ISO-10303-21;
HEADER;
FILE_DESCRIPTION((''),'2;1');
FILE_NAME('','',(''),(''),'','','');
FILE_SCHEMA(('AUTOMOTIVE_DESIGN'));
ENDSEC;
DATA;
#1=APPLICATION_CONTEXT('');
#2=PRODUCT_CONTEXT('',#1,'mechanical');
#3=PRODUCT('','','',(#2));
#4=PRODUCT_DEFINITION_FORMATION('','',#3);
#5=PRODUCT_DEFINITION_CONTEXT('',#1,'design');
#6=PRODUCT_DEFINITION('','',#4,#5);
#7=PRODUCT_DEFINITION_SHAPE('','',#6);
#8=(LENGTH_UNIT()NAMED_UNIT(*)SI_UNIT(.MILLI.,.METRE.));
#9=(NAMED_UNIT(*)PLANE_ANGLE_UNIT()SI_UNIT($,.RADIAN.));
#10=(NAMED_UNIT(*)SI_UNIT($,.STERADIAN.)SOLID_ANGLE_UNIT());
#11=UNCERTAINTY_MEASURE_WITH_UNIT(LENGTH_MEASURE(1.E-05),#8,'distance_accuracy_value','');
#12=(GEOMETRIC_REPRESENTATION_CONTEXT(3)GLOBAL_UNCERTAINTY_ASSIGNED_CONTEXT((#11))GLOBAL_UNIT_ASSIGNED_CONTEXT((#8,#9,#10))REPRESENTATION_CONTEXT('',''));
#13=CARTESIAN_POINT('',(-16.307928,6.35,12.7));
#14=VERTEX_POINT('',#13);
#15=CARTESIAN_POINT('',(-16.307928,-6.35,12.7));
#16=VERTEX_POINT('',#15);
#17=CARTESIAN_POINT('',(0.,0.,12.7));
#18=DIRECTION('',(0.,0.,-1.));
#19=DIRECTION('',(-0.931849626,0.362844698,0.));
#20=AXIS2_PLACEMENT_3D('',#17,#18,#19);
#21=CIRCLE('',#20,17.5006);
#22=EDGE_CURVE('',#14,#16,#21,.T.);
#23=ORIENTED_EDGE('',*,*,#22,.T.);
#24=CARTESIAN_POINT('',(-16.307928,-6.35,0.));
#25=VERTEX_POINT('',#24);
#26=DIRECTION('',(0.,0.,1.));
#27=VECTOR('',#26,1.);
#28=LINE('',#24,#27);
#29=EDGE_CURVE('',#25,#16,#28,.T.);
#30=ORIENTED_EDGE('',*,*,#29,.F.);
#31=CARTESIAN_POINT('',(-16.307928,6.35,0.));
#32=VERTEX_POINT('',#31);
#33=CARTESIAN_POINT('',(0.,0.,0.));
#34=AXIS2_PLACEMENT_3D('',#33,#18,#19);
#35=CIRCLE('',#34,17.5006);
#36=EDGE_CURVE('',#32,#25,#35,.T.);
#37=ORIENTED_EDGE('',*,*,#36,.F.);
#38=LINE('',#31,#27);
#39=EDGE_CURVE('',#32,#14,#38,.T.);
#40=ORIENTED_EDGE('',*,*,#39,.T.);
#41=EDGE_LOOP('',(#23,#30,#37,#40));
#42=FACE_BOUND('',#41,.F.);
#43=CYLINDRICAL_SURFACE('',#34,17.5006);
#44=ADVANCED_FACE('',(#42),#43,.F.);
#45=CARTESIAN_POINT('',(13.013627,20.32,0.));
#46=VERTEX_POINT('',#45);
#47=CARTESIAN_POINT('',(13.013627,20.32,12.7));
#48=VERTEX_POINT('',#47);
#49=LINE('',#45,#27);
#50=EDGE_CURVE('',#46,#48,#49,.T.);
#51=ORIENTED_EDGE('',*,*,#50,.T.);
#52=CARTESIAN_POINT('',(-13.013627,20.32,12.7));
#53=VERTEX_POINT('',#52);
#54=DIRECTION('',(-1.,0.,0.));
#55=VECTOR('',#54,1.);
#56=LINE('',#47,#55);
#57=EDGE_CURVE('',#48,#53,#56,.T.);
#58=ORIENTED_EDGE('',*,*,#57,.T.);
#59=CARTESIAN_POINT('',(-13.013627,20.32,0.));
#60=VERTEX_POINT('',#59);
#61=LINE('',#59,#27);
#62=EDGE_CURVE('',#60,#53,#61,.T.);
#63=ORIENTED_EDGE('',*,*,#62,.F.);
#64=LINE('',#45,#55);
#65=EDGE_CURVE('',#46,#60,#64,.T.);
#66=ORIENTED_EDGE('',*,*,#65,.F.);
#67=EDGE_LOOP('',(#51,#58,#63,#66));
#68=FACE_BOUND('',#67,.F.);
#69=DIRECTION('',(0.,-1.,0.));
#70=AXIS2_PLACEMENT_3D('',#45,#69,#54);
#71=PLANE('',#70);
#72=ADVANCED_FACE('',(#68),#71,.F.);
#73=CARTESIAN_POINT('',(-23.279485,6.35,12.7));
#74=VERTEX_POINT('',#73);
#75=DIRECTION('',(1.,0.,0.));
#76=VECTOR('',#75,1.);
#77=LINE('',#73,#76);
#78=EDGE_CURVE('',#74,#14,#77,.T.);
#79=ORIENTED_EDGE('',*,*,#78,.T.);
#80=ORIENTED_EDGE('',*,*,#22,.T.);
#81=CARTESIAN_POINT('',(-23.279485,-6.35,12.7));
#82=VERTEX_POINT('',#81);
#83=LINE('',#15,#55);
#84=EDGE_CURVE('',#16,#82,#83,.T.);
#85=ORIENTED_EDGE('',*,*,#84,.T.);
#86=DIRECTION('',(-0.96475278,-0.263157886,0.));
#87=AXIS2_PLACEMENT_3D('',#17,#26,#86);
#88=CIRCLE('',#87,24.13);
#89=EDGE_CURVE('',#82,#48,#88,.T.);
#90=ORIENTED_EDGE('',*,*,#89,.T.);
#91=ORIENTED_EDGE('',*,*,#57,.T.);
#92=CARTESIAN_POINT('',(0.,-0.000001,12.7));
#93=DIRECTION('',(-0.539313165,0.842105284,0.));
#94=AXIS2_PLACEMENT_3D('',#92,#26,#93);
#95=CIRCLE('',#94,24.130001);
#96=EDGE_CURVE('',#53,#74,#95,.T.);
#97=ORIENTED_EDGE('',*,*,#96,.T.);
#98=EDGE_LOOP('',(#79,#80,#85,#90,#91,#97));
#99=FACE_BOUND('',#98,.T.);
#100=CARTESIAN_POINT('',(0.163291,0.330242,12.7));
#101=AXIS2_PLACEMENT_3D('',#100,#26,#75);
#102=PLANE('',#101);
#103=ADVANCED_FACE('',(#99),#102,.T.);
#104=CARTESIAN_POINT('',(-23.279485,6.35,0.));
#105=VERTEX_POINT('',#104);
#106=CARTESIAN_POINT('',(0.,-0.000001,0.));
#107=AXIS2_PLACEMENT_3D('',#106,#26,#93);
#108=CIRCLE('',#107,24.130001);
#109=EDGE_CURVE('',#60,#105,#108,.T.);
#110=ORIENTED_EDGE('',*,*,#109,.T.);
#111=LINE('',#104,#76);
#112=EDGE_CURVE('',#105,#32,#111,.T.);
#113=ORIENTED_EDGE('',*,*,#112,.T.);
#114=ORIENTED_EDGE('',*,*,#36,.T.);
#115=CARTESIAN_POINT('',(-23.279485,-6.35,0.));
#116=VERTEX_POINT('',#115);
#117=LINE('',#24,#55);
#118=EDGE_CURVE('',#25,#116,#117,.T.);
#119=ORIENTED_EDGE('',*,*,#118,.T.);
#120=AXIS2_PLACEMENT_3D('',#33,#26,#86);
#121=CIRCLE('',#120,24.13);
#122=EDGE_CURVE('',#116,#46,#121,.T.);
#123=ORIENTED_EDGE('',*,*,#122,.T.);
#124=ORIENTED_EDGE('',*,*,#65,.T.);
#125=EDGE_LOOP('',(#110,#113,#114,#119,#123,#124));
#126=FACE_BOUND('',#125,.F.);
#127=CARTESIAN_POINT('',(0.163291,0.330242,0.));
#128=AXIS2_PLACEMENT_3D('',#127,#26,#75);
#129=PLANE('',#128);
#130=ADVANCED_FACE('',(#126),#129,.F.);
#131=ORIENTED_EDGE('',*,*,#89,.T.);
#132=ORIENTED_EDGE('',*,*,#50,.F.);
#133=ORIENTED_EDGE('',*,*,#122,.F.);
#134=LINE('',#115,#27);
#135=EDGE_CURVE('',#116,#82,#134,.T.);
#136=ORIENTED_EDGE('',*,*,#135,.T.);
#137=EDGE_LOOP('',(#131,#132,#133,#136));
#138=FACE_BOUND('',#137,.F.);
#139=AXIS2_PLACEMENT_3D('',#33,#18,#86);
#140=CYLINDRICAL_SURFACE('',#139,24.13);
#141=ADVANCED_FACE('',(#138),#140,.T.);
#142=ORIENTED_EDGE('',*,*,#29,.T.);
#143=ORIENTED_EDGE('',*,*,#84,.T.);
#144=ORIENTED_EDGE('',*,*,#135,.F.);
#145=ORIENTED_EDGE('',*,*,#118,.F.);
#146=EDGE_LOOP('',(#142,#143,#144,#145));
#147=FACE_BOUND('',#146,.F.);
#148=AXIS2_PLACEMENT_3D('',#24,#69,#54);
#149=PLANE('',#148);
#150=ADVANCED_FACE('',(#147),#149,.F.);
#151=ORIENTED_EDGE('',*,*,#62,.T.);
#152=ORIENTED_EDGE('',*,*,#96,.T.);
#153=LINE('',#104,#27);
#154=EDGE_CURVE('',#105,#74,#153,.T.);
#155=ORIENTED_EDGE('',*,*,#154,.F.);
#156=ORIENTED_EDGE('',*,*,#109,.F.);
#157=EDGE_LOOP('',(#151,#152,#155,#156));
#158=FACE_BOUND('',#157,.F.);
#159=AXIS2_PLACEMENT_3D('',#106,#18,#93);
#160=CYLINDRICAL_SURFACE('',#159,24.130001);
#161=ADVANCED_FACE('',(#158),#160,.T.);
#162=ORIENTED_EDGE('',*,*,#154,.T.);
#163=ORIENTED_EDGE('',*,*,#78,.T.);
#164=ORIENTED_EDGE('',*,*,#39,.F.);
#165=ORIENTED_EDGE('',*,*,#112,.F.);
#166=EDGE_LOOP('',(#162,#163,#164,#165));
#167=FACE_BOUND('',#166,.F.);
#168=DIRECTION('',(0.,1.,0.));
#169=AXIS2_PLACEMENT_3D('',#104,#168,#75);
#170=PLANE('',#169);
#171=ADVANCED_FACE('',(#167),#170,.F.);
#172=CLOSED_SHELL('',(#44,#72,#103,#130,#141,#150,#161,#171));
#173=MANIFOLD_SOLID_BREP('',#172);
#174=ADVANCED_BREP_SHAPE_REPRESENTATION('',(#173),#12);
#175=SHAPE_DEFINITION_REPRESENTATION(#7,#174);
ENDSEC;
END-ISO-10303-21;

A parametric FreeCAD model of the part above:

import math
import FreeCAD as App
import Part
import Sketcher
from FreeCAD import Vector
Q = App.Units.Quantity

doc = App.newDocument("Part")
body = doc.addObject("PartDesign::Body", "Body")

sketch1 = doc.addObject("Sketcher::SketchObject", "Sketch")
body.addObject(sketch1)
sketch1.AttachmentSupport = (doc.XY_Plane, [""])
sketch1.MapMode = "FlatFace"
sketch1.addGeometry(Part.ArcOfCircle(Part.Circle(Vector(0, 0, 0), Vector(0, 0, 1), 18), math.radians(-159), math.radians(159)), False)
sketch1.addGeometry(Part.LineSegment(Vector(-16, -6, 0), Vector(-23, -6, 0)), False)
sketch1.addGeometry(Part.ArcOfCircle(Part.Circle(Vector(0, 0, 0), Vector(0, 0, 1), 24), math.radians(-165), math.radians(57)), False)
sketch1.addGeometry(Part.LineSegment(Vector(13, 20, 0), Vector(-13, 20, 0)), False)
sketch1.addGeometry(Part.ArcOfCircle(Part.Circle(Vector(0, 0, 0), Vector(0, 0, 1), 24), math.radians(123), math.radians(165)), False)
sketch1.addGeometry(Part.LineSegment(Vector(-23, 6, 0), Vector(-16, 6, 0)), False)
sketch1.addConstraint(Sketcher.Constraint("Coincident", 0, 1, 1, 1))
sketch1.addConstraint(Sketcher.Constraint("Coincident", 1, 2, 2, 1))
sketch1.addConstraint(Sketcher.Constraint("Coincident", 2, 2, 3, 1))
sketch1.addConstraint(Sketcher.Constraint("Coincident", 3, 2, 4, 1))
sketch1.addConstraint(Sketcher.Constraint("Coincident", 4, 2, 5, 1))
sketch1.addConstraint(Sketcher.Constraint("Coincident", 5, 2, 0, 2))
sketch1.addConstraint(Sketcher.Constraint("Horizontal", 1))
sketch1.addConstraint(Sketcher.Constraint("Horizontal", 3))
sketch1.addConstraint(Sketcher.Constraint("Horizontal", 5))
sketch1.addConstraint(Sketcher.Constraint("Coincident", 0, 3, -1, 1))
sketch1.addConstraint(Sketcher.Constraint("Coincident", 2, 3, -1, 1))
sketch1.addConstraint(Sketcher.Constraint("Coincident", 4, 3, -1, 1))
sketch1.addConstraint(Sketcher.Constraint("Equal", 2, 4))
sketch1.addConstraint(Sketcher.Constraint("Vertical", 1, 2, 4, 2))
sketch1.addConstraint(Sketcher.Constraint("Radius", 2, Q("0.95 in")))
sketch1.addConstraint(Sketcher.Constraint("Radius", 0, Q("0.689 in")))
sketch1.addConstraint(Sketcher.Constraint("DistanceY", -1, 1, 2, 2, Q("0.8 in")))
sketch1.addConstraint(Sketcher.Constraint("DistanceY", 1, 2, 4, 2, Q("0.5 in")))
pad1 = doc.addObject("PartDesign::Pad", "Pad")
body.addObject(pad1)
pad1.Profile = sketch1
pad1.Length = Q("0.5 in")

doc.recompute()
